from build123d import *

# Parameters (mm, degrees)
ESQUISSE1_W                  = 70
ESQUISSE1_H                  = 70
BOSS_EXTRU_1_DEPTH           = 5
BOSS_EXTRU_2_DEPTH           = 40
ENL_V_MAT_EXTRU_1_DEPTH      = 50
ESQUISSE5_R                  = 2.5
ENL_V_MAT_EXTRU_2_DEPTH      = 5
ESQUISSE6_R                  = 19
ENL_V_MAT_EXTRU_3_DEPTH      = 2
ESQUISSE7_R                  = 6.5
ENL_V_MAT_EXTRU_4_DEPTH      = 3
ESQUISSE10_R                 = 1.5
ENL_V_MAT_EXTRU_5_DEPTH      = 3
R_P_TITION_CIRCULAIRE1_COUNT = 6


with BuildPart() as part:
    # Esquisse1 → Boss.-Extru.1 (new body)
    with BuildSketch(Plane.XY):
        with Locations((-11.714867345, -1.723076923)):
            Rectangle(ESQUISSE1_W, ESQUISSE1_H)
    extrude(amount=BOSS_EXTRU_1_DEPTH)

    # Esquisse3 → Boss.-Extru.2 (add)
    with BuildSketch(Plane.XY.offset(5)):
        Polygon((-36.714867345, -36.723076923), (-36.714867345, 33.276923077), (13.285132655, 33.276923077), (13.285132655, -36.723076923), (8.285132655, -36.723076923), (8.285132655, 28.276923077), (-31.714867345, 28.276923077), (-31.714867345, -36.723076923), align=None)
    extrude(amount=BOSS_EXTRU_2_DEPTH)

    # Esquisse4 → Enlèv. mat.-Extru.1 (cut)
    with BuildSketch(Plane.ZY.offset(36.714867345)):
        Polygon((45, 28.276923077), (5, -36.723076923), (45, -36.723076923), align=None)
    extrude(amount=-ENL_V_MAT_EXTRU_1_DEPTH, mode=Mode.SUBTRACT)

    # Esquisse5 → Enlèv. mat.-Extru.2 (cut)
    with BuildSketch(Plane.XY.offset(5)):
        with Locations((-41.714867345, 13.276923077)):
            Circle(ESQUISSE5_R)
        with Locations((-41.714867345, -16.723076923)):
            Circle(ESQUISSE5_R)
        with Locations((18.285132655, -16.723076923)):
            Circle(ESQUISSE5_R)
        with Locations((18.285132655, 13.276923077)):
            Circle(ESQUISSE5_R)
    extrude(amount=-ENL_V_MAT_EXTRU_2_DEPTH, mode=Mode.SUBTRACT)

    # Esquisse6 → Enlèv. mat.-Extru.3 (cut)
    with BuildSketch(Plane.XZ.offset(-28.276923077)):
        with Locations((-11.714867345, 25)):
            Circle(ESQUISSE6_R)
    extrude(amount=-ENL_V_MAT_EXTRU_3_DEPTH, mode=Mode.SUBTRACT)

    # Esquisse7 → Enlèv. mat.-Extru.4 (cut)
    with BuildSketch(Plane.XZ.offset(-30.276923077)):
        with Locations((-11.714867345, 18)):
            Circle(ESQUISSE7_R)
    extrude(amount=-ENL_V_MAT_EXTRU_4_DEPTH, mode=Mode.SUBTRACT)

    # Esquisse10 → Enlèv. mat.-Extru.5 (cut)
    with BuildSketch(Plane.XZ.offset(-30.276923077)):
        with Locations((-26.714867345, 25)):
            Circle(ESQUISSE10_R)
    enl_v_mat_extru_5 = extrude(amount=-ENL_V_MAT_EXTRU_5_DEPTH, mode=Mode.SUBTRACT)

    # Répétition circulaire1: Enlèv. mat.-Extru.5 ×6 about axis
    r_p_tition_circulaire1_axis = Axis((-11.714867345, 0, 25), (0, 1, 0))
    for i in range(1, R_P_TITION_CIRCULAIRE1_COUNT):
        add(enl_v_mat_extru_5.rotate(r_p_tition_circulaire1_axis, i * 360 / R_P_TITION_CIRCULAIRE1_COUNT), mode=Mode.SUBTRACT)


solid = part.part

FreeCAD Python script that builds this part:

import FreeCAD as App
import Part
import Sketcher

V = App.Vector


def add_polygon(sketch, points):
    """Adds a closed chain of lines whose ends are joined by coincident constraints."""
    first, n = sketch.GeometryCount, len(points)
    for a, b in zip(points, points[1:] + points[:1]):
        sketch.addGeometry(Part.LineSegment(App.Vector(*a, 0), App.Vector(*b, 0)), False)
    for i in range(n):
        sketch.addConstraint(Sketcher.Constraint("Coincident", first + i, 2, first + (i + 1) % n, 1))

doc = App.newDocument("Part")
body = doc.addObject("PartDesign::Body", "Body")

# Sketch on XY plane
sketch1 = doc.addObject("Sketcher::SketchObject", "Sketch")
body.addObject(sketch1)
sketch1.AttachmentSupport = (doc.XY_Plane, [""])
sketch1.MapMode = "FlatFace"
add_polygon(sketch1, [(-47, 33), (-47, -37), (23, -37), (23, 33)])  # lines 0-3
sketch1.addConstraint(Sketcher.Constraint("Vertical", 0))
sketch1.addConstraint(Sketcher.Constraint("Horizontal", 1))
sketch1.addConstraint(Sketcher.Constraint("Vertical", 2))
sketch1.addConstraint(Sketcher.Constraint("Horizontal", 3))
sketch1.addConstraint(Sketcher.Constraint("Equal", 3, 0))
sketch1.addConstraint(Sketcher.Constraint("DistanceX", 1, 1, 1, 2, 70.0))
sketch1.addConstraint(Sketcher.Constraint("DistanceX", 0, 2, -1, 1, 46.714867))
sketch1.addConstraint(Sketcher.Constraint("DistanceY", 0, 2, -1, 1, 36.723077))
pad1 = doc.addObject("PartDesign::Pad", "Pad")
body.addObject(pad1)
pad1.Profile = sketch1
pad1.Length = 5

# Sketch on XY plane
sketch2 = doc.addObject("Sketcher::SketchObject", "Sketch001")
body.addObject(sketch2)
sketch2.AttachmentSupport = (doc.XY_Plane, [""])
sketch2.MapMode = "FlatFace"
sketch2.AttachmentOffset = App.Placement(V(0, 0, 5), App.Rotation())
add_polygon(sketch2, [(-37, 33), (-37, -37), (-32, -37), (-32, 28), (8, 28), (8, -37), (13, -37), (13, 33)])  # lines 0-7
sketch2.addConstraint(Sketcher.Constraint("Vertical", 0))
sketch2.addConstraint(Sketcher.Constraint("Horizontal", 1))
sketch2.addConstraint(Sketcher.Constraint("Vertical", 2))
sketch2.addConstraint(Sketcher.Constraint("Horizontal", 3))
sketch2.addConstraint(Sketcher.Constraint("Vertical", 4))
sketch2.addConstraint(Sketcher.Constraint("Horizontal", 5))
sketch2.addConstraint(Sketcher.Constraint("Vertical", 6))
sketch2.addConstraint(Sketcher.Constraint("Horizontal", 7))
sketch2.addConstraint(Sketcher.Constraint("Horizontal", 1, 2, 4, 2))
sketch2.addConstraint(Sketcher.Constraint("Equal", 1, 5))
sketch2.addConstraint(Sketcher.Constraint("DistanceX", 1, 1, 1, 2, 5.0))
sketch2.addConstraint(Sketcher.Constraint("DistanceX", 3, 1, 3, 2, 40.0))
sketch2.addConstraint(Sketcher.Constraint("DistanceY", 0, 2, 0, 1, 70.0))
sketch2.addConstraint(Sketcher.Constraint("DistanceY", 2, 1, 2, 2, 65.0))
sketch2.addConstraint(Sketcher.Constraint("DistanceX", 0, 2, -1, 1, 36.714867))
sketch2.addConstraint(Sketcher.Constraint("DistanceY", 0, 2, -1, 1, 36.723077))
pad2 = doc.addObject("PartDesign::Pad", "Pad001")
body.addObject(pad2)
pad2.Profile = sketch2
pad2.Length = 40

# Sketch on YZ plane
sketch3 = doc.addObject("Sketcher::SketchObject", "Sketch002")
body.addObject(sketch3)
sketch3.AttachmentSupport = (doc.YZ_Plane, [""])
sketch3.MapMode = "FlatFace"
sketch3.AttachmentOffset = App.Placement(V(0, 0, -36.714867), App.Rotation())
add_polygon(sketch3, [(28, 45), (-37, 5), (-37, 45)])  # lines 0-2
sketch3.addConstraint(Sketcher.Constraint("Vertical", 1))
sketch3.addConstraint(Sketcher.Constraint("Horizontal", 2))
sketch3.addConstraint(Sketcher.Constraint("DistanceX", 2, 1, 2, 2, 65.0))
sketch3.addConstraint(Sketcher.Constraint("DistanceY", 1, 1, 1, 2, 40.0))
sketch3.addConstraint(Sketcher.Constraint("DistanceY", -1, 1, 0, 2, 5.0))
sketch3.addConstraint(Sketcher.Constraint("DistanceX", 0, 2, -1, 1, 36.723077))
pocket1 = doc.addObject("PartDesign::Pocket", "Pocket")
body.addObject(pocket1)
pocket1.Profile = sketch3
pocket1.Length = 50
pocket1.Reversed = True

# Sketch on XY plane
sketch4 = doc.addObject("Sketcher::SketchObject", "Sketch003")
body.addObject(sketch4)
sketch4.AttachmentSupport = (doc.XY_Plane, [""])
sketch4.MapMode = "FlatFace"
sketch4.AttachmentOffset = App.Placement(V(0, 0, 5), App.Rotation())
sketch4.addGeometry(Part.Circle(V(-41.7, 13.3, 0), V(0, 0, 1), 2.5), False)
sketch4.addGeometry(Part.Circle(V(-41.7, -16.7, 0), V(0, 0, 1), 2.5), False)
sketch4.addGeometry(Part.Circle(V(18.3, -16.7, 0), V(0, 0, 1), 2.5), False)
sketch4.addGeometry(Part.Circle(V(18.3, 13.3, 0), V(0, 0, 1), 2.5), False)
sketch4.addConstraint(Sketcher.Constraint("Equal", 0, 1))
sketch4.addConstraint(Sketcher.Constraint("Equal", 1, 2))
sketch4.addConstraint(Sketcher.Constraint("Equal", 2, 3))
sketch4.addConstraint(Sketcher.Constraint("Horizontal", 1, 3, 2, 3))
sketch4.addConstraint(Sketcher.Constraint("Horizontal", 0, 3, 3, 3))
sketch4.addConstraint(Sketcher.Constraint("Vertical", 0, 3, 1, 3))
sketch4.addConstraint(Sketcher.Constraint("Vertical", 2, 3, 3, 3))
sketch4.addConstraint(Sketcher.Constraint("Diameter", 0, 5.0))
sketch4.addConstraint(Sketcher.Constraint("DistanceY", 1, 3, 0, 3, 30.0))
sketch4.addConstraint(Sketcher.Constraint("DistanceX", 1, 3, 2, 3, 60.0))
sketch4.addConstraint(Sketcher.Constraint("DistanceX", 0, 3, -1, 1, 41.714867))
sketch4.addConstraint(Sketcher.Constraint("DistanceY", -1, 1, 0, 3, 13.276923))
pocket2 = doc.addObject("PartDesign::Pocket", "Pocket001")
body.addObject(pocket2)
pocket2.Profile = sketch4
pocket2.Length = 5

# Sketch on XZ plane
sketch5 = doc.addObject("Sketcher::SketchObject", "Sketch004")
body.addObject(sketch5)
sketch5.AttachmentSupport = (doc.XZ_Plane, [""])
sketch5.MapMode = "FlatFace"
sketch5.AttachmentOffset = App.Placement(V(0, 0, -28.276923), App.Rotation())
sketch5.addGeometry(Part.Circle(V(-12, 25, 0), V(0, 0, 1), 19), False)
sketch5.addConstraint(Sketcher.Constraint("Diameter", 0, 38.0))
sketch5.addConstraint(Sketcher.Constraint("DistanceY", -1, 1, 0, 3, 25.0))
sketch5.addConstraint(Sketcher.Constraint("DistanceX", 0, 3, -1, 1, 11.714867))
pocket3 = doc.addObject("PartDesign::Pocket", "Pocket002")
body.addObject(pocket3)
pocket3.Profile = sketch5
pocket3.Length = 2

# Sketch on XZ plane
sketch6 = doc.addObject("Sketcher::SketchObject", "Sketch005")
body.addObject(sketch6)
sketch6.AttachmentSupport = (doc.XZ_Plane, [""])
sketch6.MapMode = "FlatFace"
sketch6.AttachmentOffset = App.Placement(V(0, 0, -30.276923), App.Rotation())
sketch6.addGeometry(Part.Circle(V(-12, 18, 0), V(0, 0, 1), 6), False)
sketch6.addConstraint(Sketcher.Constraint("Diameter", 0, 13.0))
sketch6.addConstraint(Sketcher.Constraint("DistanceY", -1, 1, 0, 3, 18.0))
sketch6.addConstraint(Sketcher.Constraint("DistanceX", 0, 3, -1, 1, 11.714867))
pocket4 = doc.addObject("PartDesign::Pocket", "Pocket003")
body.addObject(pocket4)
pocket4.Profile = sketch6
pocket4.Length = 3

# Sketch on XZ plane
sketch7 = doc.addObject("Sketcher::SketchObject", "Sketch006")
body.addObject(sketch7)
sketch7.AttachmentSupport = (doc.XZ_Plane, [""])
sketch7.MapMode = "FlatFace"
sketch7.AttachmentOffset = App.Placement(V(0, 0, -30.276923), App.Rotation())
sketch7.addGeometry(Part.Circle(V(-26.7, 25, 0), V(0, 0, 1), 1.5), False)
sketch7.addConstraint(Sketcher.Constraint("Diameter", 0, 3.0))
sketch7.addConstraint(Sketcher.Constraint("DistanceY", -1, 1, 0, 3, 25.0))
sketch7.addConstraint(Sketcher.Constraint("DistanceX", 0, 3, -1, 1, 26.714867))
pocket5 = doc.addObject("PartDesign::Pocket", "Pocket004")
body.addObject(pocket5)
pocket5.Profile = sketch7
pocket5.Length = 3
doc.recompute()

datumline = doc.addObject("PartDesign::Line", "DatumLine")
body.addObject(datumline)
datumline.Placement = App.Placement(V(-11.714867, 0, 25), App.Rotation(V(0, 0, 1), V(0, 1, 0)))
polarpattern = doc.addObject("PartDesign::PolarPattern", "PolarPattern")
body.addObject(polarpattern)
polarpattern.Originals = [pocket5]
polarpattern.Axis = (datumline, [""])
polarpattern.Angle = 360
polarpattern.Occurrences = 6
body.Tip = polarpattern

doc.recompute()
